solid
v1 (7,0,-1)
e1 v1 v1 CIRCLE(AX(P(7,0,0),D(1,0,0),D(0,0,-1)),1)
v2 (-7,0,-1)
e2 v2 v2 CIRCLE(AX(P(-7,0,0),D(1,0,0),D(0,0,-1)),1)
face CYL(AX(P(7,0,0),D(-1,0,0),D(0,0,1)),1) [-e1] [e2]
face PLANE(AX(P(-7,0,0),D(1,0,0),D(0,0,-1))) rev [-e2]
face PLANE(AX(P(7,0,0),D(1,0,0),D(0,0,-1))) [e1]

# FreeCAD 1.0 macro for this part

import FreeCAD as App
import Part
import Sketcher
from FreeCAD import Vector

doc = App.newDocument("Part")
body = doc.addObject("PartDesign::Body", "Body")

# Sketch on YZ plane
sketch1 = body.newObject("Sketcher::SketchObject", "Sketch")
sketch1.AttachmentSupport = (doc.getObject("YZ_Plane"), [""])
sketch1.MapMode = "FlatFace"
sketch1.addGeometry(Part.Circle(Vector(0, 0, 0), Vector(0, 0, 1), 1), False)
sketch1.addConstraint([
    Sketcher.Constraint("Coincident", 0, 3, -1, 1),
    Sketcher.Constraint("Diameter", 0, 2.0),
])
pad1 = body.newObject("PartDesign::Pad", "Pad")
pad1.Profile = sketch1
pad1.Length = 14
pad1.Midplane = True

doc.recompute()
